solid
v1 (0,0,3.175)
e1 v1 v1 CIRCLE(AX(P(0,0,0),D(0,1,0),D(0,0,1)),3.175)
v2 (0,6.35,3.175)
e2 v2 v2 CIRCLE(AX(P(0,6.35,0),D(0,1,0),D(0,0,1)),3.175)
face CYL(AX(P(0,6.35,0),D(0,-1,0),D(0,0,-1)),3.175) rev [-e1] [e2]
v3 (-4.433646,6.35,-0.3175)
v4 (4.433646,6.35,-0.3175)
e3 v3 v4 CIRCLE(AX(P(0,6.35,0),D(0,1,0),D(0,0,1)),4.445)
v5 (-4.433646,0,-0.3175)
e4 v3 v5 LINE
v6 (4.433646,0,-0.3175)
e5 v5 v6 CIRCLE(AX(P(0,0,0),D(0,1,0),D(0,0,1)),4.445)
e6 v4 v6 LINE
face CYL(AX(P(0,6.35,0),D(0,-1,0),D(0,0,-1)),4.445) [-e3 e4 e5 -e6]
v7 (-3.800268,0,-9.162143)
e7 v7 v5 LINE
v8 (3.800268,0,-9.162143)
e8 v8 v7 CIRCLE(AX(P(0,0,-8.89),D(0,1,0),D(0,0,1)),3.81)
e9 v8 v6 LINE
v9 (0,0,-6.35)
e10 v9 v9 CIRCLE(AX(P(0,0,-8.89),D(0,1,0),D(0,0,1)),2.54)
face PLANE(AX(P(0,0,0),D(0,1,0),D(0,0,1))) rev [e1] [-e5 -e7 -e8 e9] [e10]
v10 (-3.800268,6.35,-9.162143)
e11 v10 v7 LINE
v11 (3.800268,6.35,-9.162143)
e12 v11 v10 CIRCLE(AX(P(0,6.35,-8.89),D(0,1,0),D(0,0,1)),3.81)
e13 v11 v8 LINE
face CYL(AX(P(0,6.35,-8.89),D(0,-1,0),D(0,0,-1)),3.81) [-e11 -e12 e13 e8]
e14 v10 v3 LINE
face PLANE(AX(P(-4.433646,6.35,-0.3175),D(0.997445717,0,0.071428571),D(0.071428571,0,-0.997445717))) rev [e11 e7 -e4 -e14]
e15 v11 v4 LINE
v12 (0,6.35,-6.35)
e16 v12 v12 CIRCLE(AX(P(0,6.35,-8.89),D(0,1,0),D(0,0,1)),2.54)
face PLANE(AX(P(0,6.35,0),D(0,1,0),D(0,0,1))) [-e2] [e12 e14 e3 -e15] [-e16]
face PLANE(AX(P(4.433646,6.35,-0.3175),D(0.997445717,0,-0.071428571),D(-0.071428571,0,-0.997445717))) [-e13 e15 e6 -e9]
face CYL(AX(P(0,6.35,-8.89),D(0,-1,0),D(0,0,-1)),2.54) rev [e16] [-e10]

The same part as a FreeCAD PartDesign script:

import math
import FreeCAD as App
import Part
import Sketcher
from FreeCAD import Vector
Q = App.Units.Quantity

doc = App.newDocument("Part")
params = doc.addObject("Spreadsheet::Sheet", "Params")
for row, (alias, value) in enumerate([
    ("sketch1_diameter", "0.2 in"),
    ("sketch1_diameter2", "0.25 in"),
    ("sketch1_radius", "0.15 in"),
    ("sketch1_radius2", "0.175 in"),
    ("pad1_length", "0.25 in"),
], start=1):
    params.set(f"A{row}", alias)
    params.set(f"B{row}", "=" + value)
    params.setAlias(f"B{row}", alias)

body = doc.addObject("PartDesign::Body", "Body")

sketch1 = body.newObject("Sketcher::SketchObject", "Sketch")
sketch1.AttachmentSupport = (doc.getObject("XZ_Plane"), [""])
sketch1.MapMode = "FlatFace"
sketch1.addGeometry(Part.LineSegment(Vector(4.4, -0.3, 0), Vector(3.8, -9.2, 0)), False)
sketch1.addGeometry(Part.ArcOfCircle(Part.Circle(Vector(0, -8.9, 0), Vector(0, 0, 1), 3.8), math.radians(-176), math.radians(-4)), False)
sketch1.addGeometry(Part.LineSegment(Vector(-3.8, -9.2, 0), Vector(-4.4, -0.3, 0)), False)
sketch1.addGeometry(Part.ArcOfCircle(Part.Circle(Vector(0, 0, 0), Vector(0, 0, 1), 4.4), math.radians(-4), math.radians(184)), False)
sketch1.addGeometry(Part.Circle(Vector(0, 0, 0), Vector(0, 0, 1), 3.2), False)
sketch1.addGeometry(Part.Circle(Vector(0, -8.9, 0), Vector(0, 0, 1), 2.5), False)
sketch1.addConstraint(Sketcher.Constraint("Tangent", 0, 2, 1, 2))
sketch1.addConstraint(Sketcher.Constraint("Tangent", 1, 1, 2, 1))
sketch1.addConstraint(Sketcher.Constraint("Tangent", 2, 2, 3, 2))
sketch1.addConstraint(Sketcher.Constraint("Tangent", 3, 1, 0, 1))
sketch1.addConstraint(Sketcher.Constraint("Coincident", 3, 3, -1, 1))
sketch1.addConstraint(Sketcher.Constraint("Coincident", 4, 3, -1, 1))
sketch1.addConstraint(Sketcher.Constraint("Coincident", 5, 3, 1, 3))
sketch1.addConstraint(Sketcher.Constraint("PointOnObject", 1, 3, -2))
sketch1.addConstraint(Sketcher.Constraint("Diameter", 5, Q("0.2 in")))
sketch1.addConstraint(Sketcher.Constraint("Diameter", 4, Q("0.25 in")))
sketch1.addConstraint(Sketcher.Constraint("Radius", 1, Q("0.15 in")))
sketch1.addConstraint(Sketcher.Constraint("Radius", 3, Q("0.175 in")))
sketch1.addConstraint(Sketcher.Constraint("DistanceY", 1, 3, -1, 1, Q("0.35 in")))
sketch1.setExpression("Constraints[8]", "Params.sketch1_diameter")
sketch1.setExpression("Constraints[9]", "Params.sketch1_diameter2")
sketch1.setExpression("Constraints[10]", "Params.sketch1_radius")
sketch1.setExpression("Constraints[11]", "Params.sketch1_radius2")
pad1 = body.newObject("PartDesign::Pad", "Pad")
pad1.Profile = sketch1
pad1.setExpression("Length", "Params.pad1_length")
pad1.Reversed = True

doc.recompute()
